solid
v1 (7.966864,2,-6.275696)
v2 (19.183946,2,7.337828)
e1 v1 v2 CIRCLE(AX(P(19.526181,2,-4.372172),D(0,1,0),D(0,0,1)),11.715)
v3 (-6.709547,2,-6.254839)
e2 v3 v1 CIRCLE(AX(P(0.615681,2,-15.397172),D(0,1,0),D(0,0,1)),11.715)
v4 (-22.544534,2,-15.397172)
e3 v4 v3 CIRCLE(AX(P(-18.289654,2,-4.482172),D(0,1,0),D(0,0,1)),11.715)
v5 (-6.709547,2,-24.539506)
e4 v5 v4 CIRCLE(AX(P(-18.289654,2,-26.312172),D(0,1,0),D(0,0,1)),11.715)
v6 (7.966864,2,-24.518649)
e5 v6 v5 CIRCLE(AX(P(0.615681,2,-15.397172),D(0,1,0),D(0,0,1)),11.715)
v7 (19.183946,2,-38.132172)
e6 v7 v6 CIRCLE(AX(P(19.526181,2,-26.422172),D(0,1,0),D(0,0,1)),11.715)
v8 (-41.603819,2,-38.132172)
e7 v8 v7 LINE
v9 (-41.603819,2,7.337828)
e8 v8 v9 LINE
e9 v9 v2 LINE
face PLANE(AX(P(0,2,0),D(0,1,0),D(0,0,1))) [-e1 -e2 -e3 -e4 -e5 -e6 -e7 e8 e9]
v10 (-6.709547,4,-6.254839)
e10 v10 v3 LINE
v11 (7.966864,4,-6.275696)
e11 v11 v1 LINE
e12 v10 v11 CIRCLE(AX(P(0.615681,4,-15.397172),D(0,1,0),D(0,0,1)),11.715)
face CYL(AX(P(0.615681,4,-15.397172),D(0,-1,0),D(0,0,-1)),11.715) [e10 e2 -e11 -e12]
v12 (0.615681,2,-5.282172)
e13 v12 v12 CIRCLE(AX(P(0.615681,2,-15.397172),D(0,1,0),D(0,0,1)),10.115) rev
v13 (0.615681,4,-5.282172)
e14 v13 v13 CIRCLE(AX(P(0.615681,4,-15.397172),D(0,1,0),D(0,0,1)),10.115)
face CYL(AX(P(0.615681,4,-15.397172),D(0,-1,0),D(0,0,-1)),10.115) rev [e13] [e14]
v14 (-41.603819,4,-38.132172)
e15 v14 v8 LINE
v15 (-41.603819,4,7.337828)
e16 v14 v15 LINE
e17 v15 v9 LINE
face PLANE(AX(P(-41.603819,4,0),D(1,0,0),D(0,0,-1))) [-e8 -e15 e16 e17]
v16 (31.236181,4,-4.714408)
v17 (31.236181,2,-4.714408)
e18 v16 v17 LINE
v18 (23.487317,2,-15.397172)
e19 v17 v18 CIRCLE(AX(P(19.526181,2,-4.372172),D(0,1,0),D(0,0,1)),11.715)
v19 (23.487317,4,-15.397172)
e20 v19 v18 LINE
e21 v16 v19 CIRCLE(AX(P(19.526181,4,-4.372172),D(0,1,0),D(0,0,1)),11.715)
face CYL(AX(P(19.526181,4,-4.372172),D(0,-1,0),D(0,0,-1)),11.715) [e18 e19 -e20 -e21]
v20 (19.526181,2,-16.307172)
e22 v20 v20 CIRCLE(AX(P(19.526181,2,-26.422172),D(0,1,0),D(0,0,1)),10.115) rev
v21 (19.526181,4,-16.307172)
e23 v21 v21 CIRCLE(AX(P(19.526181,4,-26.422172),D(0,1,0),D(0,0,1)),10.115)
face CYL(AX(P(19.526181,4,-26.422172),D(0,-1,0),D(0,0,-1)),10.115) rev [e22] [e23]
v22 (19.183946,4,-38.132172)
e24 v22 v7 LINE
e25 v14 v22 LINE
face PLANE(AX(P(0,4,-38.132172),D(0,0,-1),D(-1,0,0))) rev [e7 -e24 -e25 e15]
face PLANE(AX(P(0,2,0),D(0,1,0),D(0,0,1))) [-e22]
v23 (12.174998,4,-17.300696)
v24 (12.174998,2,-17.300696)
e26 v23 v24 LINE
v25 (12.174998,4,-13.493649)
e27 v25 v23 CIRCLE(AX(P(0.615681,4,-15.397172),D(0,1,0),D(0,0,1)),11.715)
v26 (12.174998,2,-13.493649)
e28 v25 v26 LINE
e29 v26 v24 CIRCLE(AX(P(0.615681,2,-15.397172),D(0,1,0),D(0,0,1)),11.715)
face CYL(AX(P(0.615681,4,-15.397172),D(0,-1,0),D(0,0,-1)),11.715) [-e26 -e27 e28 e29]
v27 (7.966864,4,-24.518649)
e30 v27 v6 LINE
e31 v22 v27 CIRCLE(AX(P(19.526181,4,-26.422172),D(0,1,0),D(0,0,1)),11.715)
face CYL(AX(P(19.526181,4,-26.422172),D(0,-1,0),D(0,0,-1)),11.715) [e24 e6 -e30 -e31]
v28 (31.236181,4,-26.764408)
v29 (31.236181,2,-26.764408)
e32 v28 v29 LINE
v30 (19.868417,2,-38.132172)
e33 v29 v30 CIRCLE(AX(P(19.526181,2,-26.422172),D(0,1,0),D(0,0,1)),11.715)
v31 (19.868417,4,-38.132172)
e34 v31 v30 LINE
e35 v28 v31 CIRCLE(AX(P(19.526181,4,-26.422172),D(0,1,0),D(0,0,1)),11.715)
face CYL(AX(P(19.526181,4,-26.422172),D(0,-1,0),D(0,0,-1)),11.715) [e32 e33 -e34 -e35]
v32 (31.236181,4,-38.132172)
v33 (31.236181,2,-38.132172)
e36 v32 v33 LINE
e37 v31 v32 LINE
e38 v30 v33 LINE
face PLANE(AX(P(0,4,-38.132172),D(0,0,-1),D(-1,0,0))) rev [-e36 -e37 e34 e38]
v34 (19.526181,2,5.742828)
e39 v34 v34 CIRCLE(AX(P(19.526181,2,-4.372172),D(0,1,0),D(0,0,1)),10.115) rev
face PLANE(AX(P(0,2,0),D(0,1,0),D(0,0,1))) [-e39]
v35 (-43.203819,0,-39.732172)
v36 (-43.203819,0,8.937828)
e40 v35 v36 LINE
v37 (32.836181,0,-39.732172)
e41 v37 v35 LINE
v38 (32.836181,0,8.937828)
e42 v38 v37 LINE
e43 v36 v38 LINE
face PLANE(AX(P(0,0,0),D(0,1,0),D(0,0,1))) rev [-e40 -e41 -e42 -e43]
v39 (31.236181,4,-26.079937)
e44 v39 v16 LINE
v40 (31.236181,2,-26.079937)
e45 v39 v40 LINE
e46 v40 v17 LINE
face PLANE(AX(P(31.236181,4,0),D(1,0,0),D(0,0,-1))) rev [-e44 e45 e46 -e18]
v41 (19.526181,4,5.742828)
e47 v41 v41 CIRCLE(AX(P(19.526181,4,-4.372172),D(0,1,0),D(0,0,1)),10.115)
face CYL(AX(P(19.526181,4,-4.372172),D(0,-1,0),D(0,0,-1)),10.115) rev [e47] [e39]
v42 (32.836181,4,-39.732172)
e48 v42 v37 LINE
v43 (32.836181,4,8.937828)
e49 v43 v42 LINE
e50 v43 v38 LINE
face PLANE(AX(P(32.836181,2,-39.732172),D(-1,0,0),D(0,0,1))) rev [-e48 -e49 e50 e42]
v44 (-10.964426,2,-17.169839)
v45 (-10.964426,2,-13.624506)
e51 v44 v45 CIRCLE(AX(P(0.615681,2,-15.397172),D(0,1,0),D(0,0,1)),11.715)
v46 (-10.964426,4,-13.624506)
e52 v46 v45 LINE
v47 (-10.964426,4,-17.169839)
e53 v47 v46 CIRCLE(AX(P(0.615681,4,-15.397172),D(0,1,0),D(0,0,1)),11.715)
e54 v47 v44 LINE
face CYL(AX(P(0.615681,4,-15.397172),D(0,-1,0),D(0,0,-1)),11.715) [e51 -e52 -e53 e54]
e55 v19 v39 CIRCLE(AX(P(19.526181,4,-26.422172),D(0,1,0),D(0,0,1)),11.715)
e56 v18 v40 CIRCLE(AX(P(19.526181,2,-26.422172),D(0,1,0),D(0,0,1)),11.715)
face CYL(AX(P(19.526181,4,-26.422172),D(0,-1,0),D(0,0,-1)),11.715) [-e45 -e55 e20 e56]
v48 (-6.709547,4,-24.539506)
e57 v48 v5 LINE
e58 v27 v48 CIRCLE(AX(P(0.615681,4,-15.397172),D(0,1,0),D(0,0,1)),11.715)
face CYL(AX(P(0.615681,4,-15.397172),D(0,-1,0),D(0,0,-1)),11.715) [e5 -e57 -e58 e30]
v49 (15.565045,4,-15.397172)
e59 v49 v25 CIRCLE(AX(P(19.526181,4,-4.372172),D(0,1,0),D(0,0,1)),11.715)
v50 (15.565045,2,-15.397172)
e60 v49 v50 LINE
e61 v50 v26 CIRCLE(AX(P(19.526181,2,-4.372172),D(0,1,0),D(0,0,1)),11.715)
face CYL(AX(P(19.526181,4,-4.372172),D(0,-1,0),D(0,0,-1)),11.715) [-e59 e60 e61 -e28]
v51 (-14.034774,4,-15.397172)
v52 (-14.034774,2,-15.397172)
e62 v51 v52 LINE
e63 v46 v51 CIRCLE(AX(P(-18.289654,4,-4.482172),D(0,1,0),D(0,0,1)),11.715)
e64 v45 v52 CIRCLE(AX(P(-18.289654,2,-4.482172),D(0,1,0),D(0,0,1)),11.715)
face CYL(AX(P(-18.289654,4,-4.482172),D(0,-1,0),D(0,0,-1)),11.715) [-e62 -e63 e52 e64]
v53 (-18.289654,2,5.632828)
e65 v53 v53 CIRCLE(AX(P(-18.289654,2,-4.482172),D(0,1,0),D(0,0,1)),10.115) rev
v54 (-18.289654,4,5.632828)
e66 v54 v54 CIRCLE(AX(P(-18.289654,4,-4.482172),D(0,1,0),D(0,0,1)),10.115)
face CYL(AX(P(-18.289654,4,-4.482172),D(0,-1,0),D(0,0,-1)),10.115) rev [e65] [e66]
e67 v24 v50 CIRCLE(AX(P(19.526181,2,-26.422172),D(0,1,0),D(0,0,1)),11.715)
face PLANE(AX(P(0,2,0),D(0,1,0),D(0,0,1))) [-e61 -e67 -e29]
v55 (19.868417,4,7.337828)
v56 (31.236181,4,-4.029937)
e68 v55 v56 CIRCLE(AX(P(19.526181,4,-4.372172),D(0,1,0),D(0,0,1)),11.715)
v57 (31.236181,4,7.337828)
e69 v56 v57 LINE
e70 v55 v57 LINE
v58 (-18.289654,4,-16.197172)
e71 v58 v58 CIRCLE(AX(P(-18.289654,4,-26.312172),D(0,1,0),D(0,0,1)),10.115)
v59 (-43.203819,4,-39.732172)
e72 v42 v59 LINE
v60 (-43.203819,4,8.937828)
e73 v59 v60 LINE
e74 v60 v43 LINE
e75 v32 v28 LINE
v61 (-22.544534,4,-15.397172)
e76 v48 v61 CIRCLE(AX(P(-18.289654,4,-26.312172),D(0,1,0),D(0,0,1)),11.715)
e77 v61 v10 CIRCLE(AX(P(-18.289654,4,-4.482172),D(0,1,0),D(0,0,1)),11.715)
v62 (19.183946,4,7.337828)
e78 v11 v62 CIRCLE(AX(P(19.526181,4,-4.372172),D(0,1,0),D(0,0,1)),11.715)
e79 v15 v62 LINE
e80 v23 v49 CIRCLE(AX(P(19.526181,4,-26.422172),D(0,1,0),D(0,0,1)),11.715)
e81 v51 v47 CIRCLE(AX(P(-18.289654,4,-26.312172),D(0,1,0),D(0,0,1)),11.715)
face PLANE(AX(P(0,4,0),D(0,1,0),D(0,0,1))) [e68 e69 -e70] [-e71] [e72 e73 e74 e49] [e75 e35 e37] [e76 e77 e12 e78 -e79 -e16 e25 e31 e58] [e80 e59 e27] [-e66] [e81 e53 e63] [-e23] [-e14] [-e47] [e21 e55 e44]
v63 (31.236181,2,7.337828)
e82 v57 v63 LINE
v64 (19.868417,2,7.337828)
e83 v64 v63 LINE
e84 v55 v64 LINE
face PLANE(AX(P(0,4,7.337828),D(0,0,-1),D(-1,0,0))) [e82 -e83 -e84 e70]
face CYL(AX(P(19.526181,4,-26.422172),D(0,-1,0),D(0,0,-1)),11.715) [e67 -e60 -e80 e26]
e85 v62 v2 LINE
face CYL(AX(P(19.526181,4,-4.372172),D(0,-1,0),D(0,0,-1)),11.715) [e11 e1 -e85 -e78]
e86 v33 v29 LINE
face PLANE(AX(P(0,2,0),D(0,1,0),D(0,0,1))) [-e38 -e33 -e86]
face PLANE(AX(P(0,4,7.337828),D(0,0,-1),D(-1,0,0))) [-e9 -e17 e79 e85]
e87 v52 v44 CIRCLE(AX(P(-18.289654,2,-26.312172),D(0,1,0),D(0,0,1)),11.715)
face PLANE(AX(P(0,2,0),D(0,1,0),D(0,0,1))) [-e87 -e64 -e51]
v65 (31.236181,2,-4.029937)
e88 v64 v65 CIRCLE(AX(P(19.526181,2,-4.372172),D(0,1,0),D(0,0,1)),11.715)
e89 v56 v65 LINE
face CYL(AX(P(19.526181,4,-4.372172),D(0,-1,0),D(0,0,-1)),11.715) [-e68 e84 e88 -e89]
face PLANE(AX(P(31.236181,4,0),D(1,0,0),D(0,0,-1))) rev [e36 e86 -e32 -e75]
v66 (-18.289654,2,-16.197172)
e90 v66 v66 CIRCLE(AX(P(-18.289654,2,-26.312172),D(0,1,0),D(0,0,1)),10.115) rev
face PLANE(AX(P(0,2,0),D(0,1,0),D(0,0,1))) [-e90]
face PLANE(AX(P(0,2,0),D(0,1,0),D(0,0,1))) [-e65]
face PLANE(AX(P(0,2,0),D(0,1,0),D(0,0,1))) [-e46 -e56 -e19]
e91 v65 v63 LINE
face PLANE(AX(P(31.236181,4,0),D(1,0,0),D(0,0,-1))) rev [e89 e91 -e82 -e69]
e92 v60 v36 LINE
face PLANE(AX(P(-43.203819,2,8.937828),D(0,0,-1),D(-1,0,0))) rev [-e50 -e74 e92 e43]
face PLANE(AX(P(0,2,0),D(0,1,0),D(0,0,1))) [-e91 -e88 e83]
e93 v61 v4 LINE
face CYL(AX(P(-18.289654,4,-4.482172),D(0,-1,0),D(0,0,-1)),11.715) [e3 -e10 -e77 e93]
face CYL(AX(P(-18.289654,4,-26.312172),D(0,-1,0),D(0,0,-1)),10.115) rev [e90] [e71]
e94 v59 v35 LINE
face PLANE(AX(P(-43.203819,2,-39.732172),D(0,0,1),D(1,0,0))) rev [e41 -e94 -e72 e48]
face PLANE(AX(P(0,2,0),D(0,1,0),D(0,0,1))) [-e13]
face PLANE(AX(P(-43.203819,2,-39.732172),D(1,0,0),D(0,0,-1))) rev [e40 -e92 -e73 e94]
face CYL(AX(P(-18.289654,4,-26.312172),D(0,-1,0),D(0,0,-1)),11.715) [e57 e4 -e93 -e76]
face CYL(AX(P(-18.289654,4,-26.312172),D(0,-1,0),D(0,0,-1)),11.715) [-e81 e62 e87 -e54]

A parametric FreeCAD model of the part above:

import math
import FreeCAD as App
import Part
import Sketcher
Q = App.Units.Quantity


def add_polygon(sketch, points):
    """Adds a closed chain of lines whose ends are joined by coincident constraints."""
    first, n = sketch.GeometryCount, len(points)
    for a, b in zip(points, points[1:] + points[:1]):
        sketch.addGeometry(Part.LineSegment(App.Vector(*a, 0), App.Vector(*b, 0)), False)
    for i in range(n):
        sketch.addConstraint(Sketcher.Constraint("Coincident", first + i, 2, first + (i + 1) % n, 1))

doc = App.newDocument("Part")
body = doc.addObject("PartDesign::Body", "Body")

# Sketch on XZ plane
sketch1 = body.newObject("Sketcher::SketchObject", "Sketch")
sketch1.AttachmentSupport = (doc.getObject("XZ_Plane"), [""])
sketch1.MapMode = "FlatFace"
add_polygon(sketch1, [(-43, -40), (-43, 9), (33, 9), (33, -40)])  # lines 0-3
sketch1.addConstraint(Sketcher.Constraint("Vertical", 0))
sketch1.addConstraint(Sketcher.Constraint("Horizontal", 1))
sketch1.addConstraint(Sketcher.Constraint("Vertical", 2))
sketch1.addConstraint(Sketcher.Constraint("Horizontal", 3))
sketch1.addConstraint(Sketcher.Constraint("DistanceX", 1, 1, 1, 2, Q("76.04 mm")))
sketch1.addConstraint(Sketcher.Constraint("DistanceY", 0, 1, 0, 2, Q("48.67 mm")))
sketch1.addConstraint(Sketcher.Constraint("DistanceX", 0, 2, -1, 1, Q("43.203819 mm")))
sketch1.addConstraint(Sketcher.Constraint("DistanceY", -1, 1, 0, 2, Q("8.937828 mm")))
pad1 = body.newObject("PartDesign::Pad", "Pad")
pad1.Profile = sketch1
pad1.Length = 2
pad1.Reversed = True

# Sketch on XZ plane
sketch2 = body.newObject("Sketcher::SketchObject", "Sketch001")
sketch2.AttachmentSupport = (doc.getObject("XZ_Plane"), [""])
sketch2.MapMode = "FlatFace"
sketch2.AttachmentOffset = App.Placement(App.Vector(0, 0, -2), App.Rotation())
sketch2.addGeometry(Part.ArcOfCircle(Part.Circle(App.Vector(0.6, -15.4, 0), App.Vector(0, 0, 1), 11.7), math.radians(-129), math.radians(-51)), False)
sketch2.addGeometry(Part.ArcOfCircle(Part.Circle(App.Vector(-18.3, -26.3, 0), App.Vector(0, 0, 1), 11.7), math.radians(111), math.radians(369)), False)
sketch2.addGeometry(Part.ArcOfCircle(Part.Circle(App.Vector(-18.3, -4.5, 0), App.Vector(0, 0, 1), 11.7), math.radians(-9), math.radians(249)), False)
sketch2.addGeometry(Part.ArcOfCircle(Part.Circle(App.Vector(0.6, -15.4, 0), App.Vector(0, 0, 1), 11.7), math.radians(51), math.radians(129)), False)
sketch2.addGeometry(Part.ArcOfCircle(Part.Circle(App.Vector(19.5, -4.4, 0), App.Vector(0, 0, 1), 11.7), math.radians(92), math.radians(189)), False)
sketch2.addGeometry(Part.LineSegment(App.Vector(19.2, 7.3, 0), App.Vector(19.9, 7.3, 0)), False)
sketch2.addGeometry(Part.ArcOfCircle(Part.Circle(App.Vector(19.5, -4.4, 0), App.Vector(0, 0, 1), 11.7), math.radians(2), math.radians(88)), False)
sketch2.addGeometry(Part.LineSegment(App.Vector(31.2, -4, 0), App.Vector(31.2, -4.7, 0)), False)
sketch2.addGeometry(Part.ArcOfCircle(Part.Circle(App.Vector(19.5, -4.4, 0), App.Vector(0, 0, 1), 11.7), math.radians(-70), math.radians(-2)), False)
sketch2.addGeometry(Part.ArcOfCircle(Part.Circle(App.Vector(19.5, -26.4, 0), App.Vector(0, 0, 1), 11.7), math.radians(2), math.radians(70)), False)
sketch2.addGeometry(Part.LineSegment(App.Vector(31.2, -26.1, 0), App.Vector(31.2, -26.8, 0)), False)
sketch2.addGeometry(Part.ArcOfCircle(Part.Circle(App.Vector(19.5, -26.4, 0), App.Vector(0, 0, 1), 11.7), math.radians(-88), math.radians(-2)), False)
sketch2.addGeometry(Part.LineSegment(App.Vector(19.9, -38.1, 0), App.Vector(19.2, -38.1, 0)), False)
sketch2.addGeometry(Part.ArcOfCircle(Part.Circle(App.Vector(19.5, -26.4, 0), App.Vector(0, 0, 1), 11.7), math.radians(171), math.radians(268)), False)
sketch2.addGeometry(Part.Circle(App.Vector(-18.3, -4.5, 0), App.Vector(0, 0, 1), 10.1), False)
sketch2.addGeometry(Part.Circle(App.Vector(19.5, -4.4, 0), App.Vector(0, 0, 1), 10.1), False)
sketch2.addGeometry(Part.ArcOfCircle(Part.Circle(App.Vector(-18.3, -26.3, 0), App.Vector(0, 0, 1), 11.7), math.radians(51.3), math.radians(68.7)), False)
sketch2.addGeometry(Part.ArcOfCircle(Part.Circle(App.Vector(0.6, -15.4, 0), App.Vector(0, 0, 1), 11.7), math.radians(171.3), math.radians(188.7)), False)
sketch2.addGeometry(Part.ArcOfCircle(Part.Circle(App.Vector(-18.3, -4.5, 0), App.Vector(0, 0, 1), 11.7), math.radians(-68.7), math.radians(-51.3)), False)
sketch2.addGeometry(Part.Circle(App.Vector(0.6, -15.4, 0), App.Vector(0, 0, 1), 10.1), False)
sketch2.addGeometry(Part.Circle(App.Vector(-18.3, -26.3, 0), App.Vector(0, 0, 1), 10.1), False)
sketch2.addGeometry(Part.ArcOfCircle(Part.Circle(App.Vector(19.5, -4.4, 0), App.Vector(0, 0, 1), 11.7), math.radians(-128.87), math.radians(-109.76)), False)
sketch2.addGeometry(Part.ArcOfCircle(Part.Circle(App.Vector(0.6, -15.4, 0), App.Vector(0, 0, 1), 11.7), math.radians(-9.35), math.radians(9.35)), False)
sketch2.addGeometry(Part.ArcOfCircle(Part.Circle(App.Vector(19.5, -26.4, 0), App.Vector(0, 0, 1), 11.7), math.radians(109.76), math.radians(128.87)), False)
sketch2.addGeometry(Part.Circle(App.Vector(19.5, -26.4, 0), App.Vector(0, 0, 1), 10.1), False)
sketch2.addConstraint(Sketcher.Constraint("Coincident", 0, 1, 1, 2))
sketch2.addConstraint(Sketcher.Constraint("Coincident", 1, 1, 2, 2))
sketch2.addConstraint(Sketcher.Constraint("Coincident", 2, 1, 3, 2))
sketch2.addConstraint(Sketcher.Constraint("Coincident", 3, 1, 4, 2))
sketch2.addConstraint(Sketcher.Constraint("Coincident", 4, 1, 5, 1))
sketch2.addConstraint(Sketcher.Constraint("Coincident", 5, 2, 6, 2))
sketch2.addConstraint(Sketcher.Constraint("Coincident", 6, 1, 7, 1))
sketch2.addConstraint(Sketcher.Constraint("Coincident", 7, 2, 8, 2))
sketch2.addConstraint(Sketcher.Constraint("Coincident", 8, 1, 9, 2))
sketch2.addConstraint(Sketcher.Constraint("Coincident", 9, 1, 10, 1))
sketch2.addConstraint(Sketcher.Constraint("Coincident", 10, 2, 11, 2))
sketch2.addConstraint(Sketcher.Constraint("Coincident", 11, 1, 12, 1))
sketch2.addConstraint(Sketcher.Constraint("Coincident", 12, 2, 13, 2))
sketch2.addConstraint(Sketcher.Constraint("Coincident", 13, 1, 0, 2))
sketch2.addConstraint(Sketcher.Constraint("Coincident", 16, 1, 17, 2))
sketch2.addConstraint(Sketcher.Constraint("Coincident", 17, 1, 18, 2))
sketch2.addConstraint(Sketcher.Constraint("Coincident", 18, 1, 16, 2))
sketch2.addConstraint(Sketcher.Constraint("Coincident", 21, 1, 22, 2))
sketch2.addConstraint(Sketcher.Constraint("Coincident", 22, 1, 23, 2))
sketch2.addConstraint(Sketcher.Constraint("Coincident", 23, 1, 21, 2))
sketch2.addConstraint(Sketcher.Constraint("Horizontal", 5))
sketch2.addConstraint(Sketcher.Constraint("Vertical", 7))
sketch2.addConstraint(Sketcher.Constraint("Vertical", 10))
sketch2.addConstraint(Sketcher.Constraint("Horizontal", 12))
sketch2.addConstraint(Sketcher.Constraint("Coincident", 3, 3, 0, 3))
sketch2.addConstraint(Sketcher.Constraint("Coincident", 6, 3, 4, 3))
sketch2.addConstraint(Sketcher.Constraint("Coincident", 8, 3, 4, 3))
sketch2.addConstraint(Sketcher.Constraint("Coincident", 11, 3, 9, 3))
sketch2.addConstraint(Sketcher.Constraint("Coincident", 13, 3, 9, 3))
sketch2.addConstraint(Sketcher.Constraint("Coincident", 14, 3, 2, 3))
sketch2.addConstraint(Sketcher.Constraint("Coincident", 15, 3, 4, 3))
sketch2.addConstraint(Sketcher.Constraint("Coincident", 16, 3, 1, 3))
sketch2.addConstraint(Sketcher.Constraint("Coincident", 17, 3, 0, 3))
sketch2.addConstraint(Sketcher.Constraint("Coincident", 18, 3, 2, 3))
sketch2.addConstraint(Sketcher.Constraint("Coincident", 19, 3, 0, 3))
sketch2.addConstraint(Sketcher.Constraint("Coincident", 20, 3, 1, 3))
sketch2.addConstraint(Sketcher.Constraint("Coincident", 21, 3, 4, 3))
sketch2.addConstraint(Sketcher.Constraint("Coincident", 22, 3, 0, 3))
sketch2.addConstraint(Sketcher.Constraint("Coincident", 23, 3, 9, 3))
sketch2.addConstraint(Sketcher.Constraint("Coincident", 24, 3, 9, 3))
sketch2.addConstraint(Sketcher.Constraint("Equal", 0, 1))
sketch2.addConstraint(Sketcher.Constraint("Equal", 1, 2))
sketch2.addConstraint(Sketcher.Constraint("Equal", 2, 3))
sketch2.addConstraint(Sketcher.Constraint("Equal", 3, 4))
sketch2.addConstraint(Sketcher.Constraint("Equal", 4, 6))
sketch2.addConstraint(Sketcher.Constraint("Equal", 6, 8))
sketch2.addConstraint(Sketcher.Constraint("Equal", 8, 9))
sketch2.addConstraint(Sketcher.Constraint("Equal", 9, 11))
sketch2.addConstraint(Sketcher.Constraint("Equal", 11, 13))
sketch2.addConstraint(Sketcher.Constraint("Equal", 14, 15))
sketch2.addConstraint(Sketcher.Constraint("Equal", 13, 16))
sketch2.addConstraint(Sketcher.Constraint("Equal", 16, 17))
sketch2.addConstraint(Sketcher.Constraint("Equal", 17, 18))
sketch2.addConstraint(Sketcher.Constraint("Equal", 15, 19))
sketch2.addConstraint(Sketcher.Constraint("Equal", 19, 20))
sketch2.addConstraint(Sketcher.Constraint("Equal", 18, 21))
sketch2.addConstraint(Sketcher.Constraint("Equal", 21, 22))
sketch2.addConstraint(Sketcher.Constraint("Equal", 22, 23))
sketch2.addConstraint(Sketcher.Constraint("Equal", 20, 24))
sketch2.addConstraint(Sketcher.Constraint("Horizontal", 22, 3, 1, 1))
sketch2.addConstraint(Sketcher.Constraint("Horizontal", 1, 1, 8, 1))
sketch2.addConstraint(Sketcher.Constraint("Horizontal", 8, 1, 18, 1))
sketch2.addConstraint(Sketcher.Constraint("Horizontal", 18, 1, 23, 1))
sketch2.addConstraint(Sketcher.Constraint("Vertical", 7, 2, 9, 1))
sketch2.addConstraint(Sketcher.Constraint("Vertical", 5, 2, 11, 1))
sketch2.addConstraint(Sketcher.Constraint("Equal", 12, 7))
sketch2.addConstraint(Sketcher.Constraint("Diameter", 14, Q("20.23 mm")))
sketch2.addConstraint(Sketcher.Constraint("Radius", 0, Q("11.715 mm")))
sketch2.addConstraint(Sketcher.Constraint("DistanceY", 1, 3, 2, 3, Q("21.83 mm")))
sketch2.addConstraint(Sketcher.Constraint("DistanceY", 2, 3, 4, 3, Q("0.11 mm")))
sketch2.addConstraint(Sketcher.Constraint("DistanceY", 21, 3, 4, 1, Q("11.71 mm")))
sketch2.addConstraint(Sketcher.Constraint("DistanceX", -1, 1, 21, 1, Q("12.174998 mm")))
sketch2.addConstraint(Sketcher.Constraint("DistanceX", 0, 3, 4, 3, Q("18.910501 mm")))
sketch2.addConstraint(Sketcher.Constraint("DistanceY", 2, 1, -1, 1, Q("6.254839 mm")))
sketch2.addConstraint(Sketcher.Constraint("DistanceY", 13, 1, -1, 1, Q("24.518649 mm")))
pad2 = body.newObject("PartDesign::Pad", "Pad001")
pad2.Profile = sketch2
pad2.Length = 2
pad2.Reversed = True

# Sketch on XZ plane
sketch3 = body.newObject("Sketcher::SketchObject", "Sketch002")
sketch3.AttachmentSupport = (doc.getObject("XZ_Plane"), [""])
sketch3.MapMode = "FlatFace"
sketch3.AttachmentOffset = App.Placement(App.Vector(0, 0, -2), App.Rotation())
add_polygon(sketch3, [(-43, -40), (-43, 9), (33, 9), (33, -40)])  # lines 0-3
add_polygon(sketch3, [(31, 7), (-42, 7), (-42, -38), (31, -38)])  # lines 4-7
sketch3.addConstraint(Sketcher.Constraint("Vertical", 0))
sketch3.addConstraint(Sketcher.Constraint("Horizontal", 1))
sketch3.addConstraint(Sketcher.Constraint("Vertical", 2))
sketch3.addConstraint(Sketcher.Constraint("Horizontal", 3))
sketch3.addConstraint(Sketcher.Constraint("Horizontal", 4))
sketch3.addConstraint(Sketcher.Constraint("Vertical", 5))
sketch3.addConstraint(Sketcher.Constraint("Horizontal", 6))
sketch3.addConstraint(Sketcher.Constraint("Vertical", 7))
sketch3.addConstraint(Sketcher.Constraint("DistanceX", 1, 1, 1, 2, Q("76.04 mm")))
sketch3.addConstraint(Sketcher.Constraint("DistanceX", 4, 2, 4, 1, Q("72.84 mm")))
sketch3.addConstraint(Sketcher.Constraint("DistanceY", 0, 1, 0, 2, Q("48.67 mm")))
sketch3.addConstraint(Sketcher.Constraint("DistanceY", 5, 2, 5, 1, Q("45.47 mm")))
sketch3.addConstraint(Sketcher.Constraint("DistanceX", 0, 2, 4, 2, Q("1.6 mm")))
sketch3.addConstraint(Sketcher.Constraint("DistanceY", 4, 2, 0, 2, Q("1.6 mm")))
sketch3.addConstraint(Sketcher.Constraint("DistanceX", 0, 2, -1, 1, Q("43.203819 mm")))
sketch3.addConstraint(Sketcher.Constraint("DistanceY", -1, 1, 0, 2, Q("8.937828 mm")))
pad3 = body.newObject("PartDesign::Pad", "Pad002")
pad3.Profile = sketch3
pad3.Length = 2
pad3.Reversed = True

doc.recompute()
